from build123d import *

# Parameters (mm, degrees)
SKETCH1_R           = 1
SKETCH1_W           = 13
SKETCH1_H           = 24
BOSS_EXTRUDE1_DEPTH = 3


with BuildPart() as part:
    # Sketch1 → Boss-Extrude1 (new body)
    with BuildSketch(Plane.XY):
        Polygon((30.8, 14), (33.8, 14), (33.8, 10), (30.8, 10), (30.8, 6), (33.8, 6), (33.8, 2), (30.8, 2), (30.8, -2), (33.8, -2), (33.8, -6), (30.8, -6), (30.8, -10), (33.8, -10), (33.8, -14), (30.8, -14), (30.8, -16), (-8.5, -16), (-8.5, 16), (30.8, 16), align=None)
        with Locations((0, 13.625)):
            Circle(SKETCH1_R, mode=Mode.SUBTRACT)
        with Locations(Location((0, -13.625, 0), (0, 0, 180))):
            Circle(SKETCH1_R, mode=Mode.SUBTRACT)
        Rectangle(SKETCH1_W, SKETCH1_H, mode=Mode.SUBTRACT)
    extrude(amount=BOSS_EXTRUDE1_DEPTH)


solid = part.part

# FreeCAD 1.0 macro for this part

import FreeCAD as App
import Part
import Sketcher
from FreeCAD import Vector


def add_polygon(sketch, points):
    """Adds a closed chain of lines whose ends are joined by coincident constraints."""
    first, n = sketch.GeometryCount, len(points)
    for a, b in zip(points, points[1:] + points[:1]):
        sketch.addGeometry(Part.LineSegment(App.Vector(*a, 0), App.Vector(*b, 0)), False)
    for i in range(n):
        sketch.addConstraint(Sketcher.Constraint("Coincident", first + i, 2, first + (i + 1) % n, 1))

doc = App.newDocument("Part")
params = doc.addObject("Spreadsheet::Sheet", "Params")
for row, (alias, value) in enumerate([
    ("sketch1_diameter", "2 mm"),
    ("sketch1_width", "3 mm"),
    ("sketch1_width2", "13 mm"),
    ("sketch1_height", "2 mm"),
    ("sketch1_height2", "32 mm"),
    ("pad1_length", "3 mm"),
], start=1):
    params.set(f"A{row}", alias)
    params.set(f"B{row}", "=" + value)
    params.setAlias(f"B{row}", alias)

body = doc.addObject("PartDesign::Body", "Body")

# Sketch on XY plane
sketch1 = doc.addObject("Sketcher::SketchObject", "Sketch")
body.addObject(sketch1)
sketch1.AttachmentSupport = (doc.XY_Plane, [""])
sketch1.MapMode = "FlatFace"
add_polygon(sketch1, [(33.8, 14), (30.8, 14), (30.8, 16), (-8.5, 16), (-8.5, -16), (30.8, -16), (30.8, -14), (33.8, -14), (33.8, -10), (30.8, -10), (30.8, -6), (33.8, -6), (33.8, -2), (30.8, -2), (30.8, 2), (33.8, 2), (33.8, 6), (30.8, 6), (30.8, 10), (33.8, 10)])  # lines 0-19
sketch1.addGeometry(Part.Circle(Vector(0, -13.625, 0), Vector(0, 0, 1), 1), False)  # 20
add_polygon(sketch1, [(-6.5, -12), (-6.5, 12), (6.5, 12), (6.5, -12)])  # lines 21-24
sketch1.addGeometry(Part.Circle(Vector(0, 13.625, 0), Vector(0, 0, 1), 1), False)  # 25
sketch1.addConstraint([
    Sketcher.Constraint("Horizontal", 0),
    Sketcher.Constraint("Vertical", 1),
    Sketcher.Constraint("Horizontal", 2),
    Sketcher.Constraint("Vertical", 3),
    Sketcher.Constraint("Horizontal", 4),
    Sketcher.Constraint("Vertical", 5),
    Sketcher.Constraint("Horizontal", 6),
    Sketcher.Constraint("Vertical", 7),
    Sketcher.Constraint("Horizontal", 8),
    Sketcher.Constraint("Vertical", 9),
    Sketcher.Constraint("Horizontal", 10),
    Sketcher.Constraint("Vertical", 11),
    Sketcher.Constraint("Horizontal", 12),
    Sketcher.Constraint("Vertical", 13),
    Sketcher.Constraint("Horizontal", 14),
    Sketcher.Constraint("Vertical", 15),
    Sketcher.Constraint("Horizontal", 16),
    Sketcher.Constraint("Vertical", 17),
    Sketcher.Constraint("Horizontal", 18),
    Sketcher.Constraint("Vertical", 19),
    Sketcher.Constraint("Vertical", 21),
    Sketcher.Constraint("Horizontal", 22),
    Sketcher.Constraint("Vertical", 23),
    Sketcher.Constraint("Horizontal", 24),
    Sketcher.Constraint("Equal", 20, 25),
    Sketcher.Constraint("Symmetric", 20, 3, 25, 3, -1, 1),
    Sketcher.Constraint("Symmetric", 21, 2, 23, 2, -1, 1),
    Sketcher.Constraint("Symmetric", 1, 2, 4, 2, -1),
    Sketcher.Constraint("Symmetric", 11, 2, 14, 2, -1),
    Sketcher.Constraint("Symmetric", 9, 2, 16, 2, -1),
    Sketcher.Constraint("Symmetric", 7, 2, 18, 2, -1),
    Sketcher.Constraint("PointOnObject", 20, 3, -2),
    Sketcher.Constraint("Vertical", 5, 2, 8, 2),
    Sketcher.Constraint("Vertical", 7, 2, 10, 2),
    Sketcher.Constraint("Vertical", 9, 2, 12, 2),
    Sketcher.Constraint("Equal", 1, 5),
    Sketcher.Constraint("Equal", 7, 9),
    Sketcher.Constraint("Equal", 9, 11),
    Sketcher.Constraint("Equal", 11, 13),
    Sketcher.Constraint("Diameter", 20, 2.0),
    Sketcher.Constraint("DistanceX", 0, 2, 0, 1, 3.0),
    Sketcher.Constraint("DistanceX", 22, 1, 22, 2, 13.0),
    Sketcher.Constraint("DistanceY", 1, 1, 1, 2, 2.0),
    Sketcher.Constraint("DistanceY", 3, 2, 3, 1, 32.0),
    Sketcher.Constraint("DistanceY", 21, 1, 21, 2, 24.0),
    Sketcher.Constraint("DistanceX", 2, 2, 2, 1, 39.3),
    Sketcher.Constraint("DistanceX", 2, 2, 21, 2, 2.0),
    Sketcher.Constraint("DistanceY", 20, 3, 25, 3, 27.25),
])
sketch1.setExpression("Constraints[63]", "Params.sketch1_diameter")
sketch1.setExpression("Constraints[64]", "Params.sketch1_width")
sketch1.setExpression("Constraints[65]", "Params.sketch1_width2")
sketch1.setExpression("Constraints[66]", "Params.sketch1_height")
sketch1.setExpression("Constraints[67]", "Params.sketch1_height2")
pad1 = doc.addObject("PartDesign::Pad", "Pad")
body.addObject(pad1)
pad1.Profile = sketch1
pad1.setExpression("Length", "Params.pad1_length")

doc.recompute()
